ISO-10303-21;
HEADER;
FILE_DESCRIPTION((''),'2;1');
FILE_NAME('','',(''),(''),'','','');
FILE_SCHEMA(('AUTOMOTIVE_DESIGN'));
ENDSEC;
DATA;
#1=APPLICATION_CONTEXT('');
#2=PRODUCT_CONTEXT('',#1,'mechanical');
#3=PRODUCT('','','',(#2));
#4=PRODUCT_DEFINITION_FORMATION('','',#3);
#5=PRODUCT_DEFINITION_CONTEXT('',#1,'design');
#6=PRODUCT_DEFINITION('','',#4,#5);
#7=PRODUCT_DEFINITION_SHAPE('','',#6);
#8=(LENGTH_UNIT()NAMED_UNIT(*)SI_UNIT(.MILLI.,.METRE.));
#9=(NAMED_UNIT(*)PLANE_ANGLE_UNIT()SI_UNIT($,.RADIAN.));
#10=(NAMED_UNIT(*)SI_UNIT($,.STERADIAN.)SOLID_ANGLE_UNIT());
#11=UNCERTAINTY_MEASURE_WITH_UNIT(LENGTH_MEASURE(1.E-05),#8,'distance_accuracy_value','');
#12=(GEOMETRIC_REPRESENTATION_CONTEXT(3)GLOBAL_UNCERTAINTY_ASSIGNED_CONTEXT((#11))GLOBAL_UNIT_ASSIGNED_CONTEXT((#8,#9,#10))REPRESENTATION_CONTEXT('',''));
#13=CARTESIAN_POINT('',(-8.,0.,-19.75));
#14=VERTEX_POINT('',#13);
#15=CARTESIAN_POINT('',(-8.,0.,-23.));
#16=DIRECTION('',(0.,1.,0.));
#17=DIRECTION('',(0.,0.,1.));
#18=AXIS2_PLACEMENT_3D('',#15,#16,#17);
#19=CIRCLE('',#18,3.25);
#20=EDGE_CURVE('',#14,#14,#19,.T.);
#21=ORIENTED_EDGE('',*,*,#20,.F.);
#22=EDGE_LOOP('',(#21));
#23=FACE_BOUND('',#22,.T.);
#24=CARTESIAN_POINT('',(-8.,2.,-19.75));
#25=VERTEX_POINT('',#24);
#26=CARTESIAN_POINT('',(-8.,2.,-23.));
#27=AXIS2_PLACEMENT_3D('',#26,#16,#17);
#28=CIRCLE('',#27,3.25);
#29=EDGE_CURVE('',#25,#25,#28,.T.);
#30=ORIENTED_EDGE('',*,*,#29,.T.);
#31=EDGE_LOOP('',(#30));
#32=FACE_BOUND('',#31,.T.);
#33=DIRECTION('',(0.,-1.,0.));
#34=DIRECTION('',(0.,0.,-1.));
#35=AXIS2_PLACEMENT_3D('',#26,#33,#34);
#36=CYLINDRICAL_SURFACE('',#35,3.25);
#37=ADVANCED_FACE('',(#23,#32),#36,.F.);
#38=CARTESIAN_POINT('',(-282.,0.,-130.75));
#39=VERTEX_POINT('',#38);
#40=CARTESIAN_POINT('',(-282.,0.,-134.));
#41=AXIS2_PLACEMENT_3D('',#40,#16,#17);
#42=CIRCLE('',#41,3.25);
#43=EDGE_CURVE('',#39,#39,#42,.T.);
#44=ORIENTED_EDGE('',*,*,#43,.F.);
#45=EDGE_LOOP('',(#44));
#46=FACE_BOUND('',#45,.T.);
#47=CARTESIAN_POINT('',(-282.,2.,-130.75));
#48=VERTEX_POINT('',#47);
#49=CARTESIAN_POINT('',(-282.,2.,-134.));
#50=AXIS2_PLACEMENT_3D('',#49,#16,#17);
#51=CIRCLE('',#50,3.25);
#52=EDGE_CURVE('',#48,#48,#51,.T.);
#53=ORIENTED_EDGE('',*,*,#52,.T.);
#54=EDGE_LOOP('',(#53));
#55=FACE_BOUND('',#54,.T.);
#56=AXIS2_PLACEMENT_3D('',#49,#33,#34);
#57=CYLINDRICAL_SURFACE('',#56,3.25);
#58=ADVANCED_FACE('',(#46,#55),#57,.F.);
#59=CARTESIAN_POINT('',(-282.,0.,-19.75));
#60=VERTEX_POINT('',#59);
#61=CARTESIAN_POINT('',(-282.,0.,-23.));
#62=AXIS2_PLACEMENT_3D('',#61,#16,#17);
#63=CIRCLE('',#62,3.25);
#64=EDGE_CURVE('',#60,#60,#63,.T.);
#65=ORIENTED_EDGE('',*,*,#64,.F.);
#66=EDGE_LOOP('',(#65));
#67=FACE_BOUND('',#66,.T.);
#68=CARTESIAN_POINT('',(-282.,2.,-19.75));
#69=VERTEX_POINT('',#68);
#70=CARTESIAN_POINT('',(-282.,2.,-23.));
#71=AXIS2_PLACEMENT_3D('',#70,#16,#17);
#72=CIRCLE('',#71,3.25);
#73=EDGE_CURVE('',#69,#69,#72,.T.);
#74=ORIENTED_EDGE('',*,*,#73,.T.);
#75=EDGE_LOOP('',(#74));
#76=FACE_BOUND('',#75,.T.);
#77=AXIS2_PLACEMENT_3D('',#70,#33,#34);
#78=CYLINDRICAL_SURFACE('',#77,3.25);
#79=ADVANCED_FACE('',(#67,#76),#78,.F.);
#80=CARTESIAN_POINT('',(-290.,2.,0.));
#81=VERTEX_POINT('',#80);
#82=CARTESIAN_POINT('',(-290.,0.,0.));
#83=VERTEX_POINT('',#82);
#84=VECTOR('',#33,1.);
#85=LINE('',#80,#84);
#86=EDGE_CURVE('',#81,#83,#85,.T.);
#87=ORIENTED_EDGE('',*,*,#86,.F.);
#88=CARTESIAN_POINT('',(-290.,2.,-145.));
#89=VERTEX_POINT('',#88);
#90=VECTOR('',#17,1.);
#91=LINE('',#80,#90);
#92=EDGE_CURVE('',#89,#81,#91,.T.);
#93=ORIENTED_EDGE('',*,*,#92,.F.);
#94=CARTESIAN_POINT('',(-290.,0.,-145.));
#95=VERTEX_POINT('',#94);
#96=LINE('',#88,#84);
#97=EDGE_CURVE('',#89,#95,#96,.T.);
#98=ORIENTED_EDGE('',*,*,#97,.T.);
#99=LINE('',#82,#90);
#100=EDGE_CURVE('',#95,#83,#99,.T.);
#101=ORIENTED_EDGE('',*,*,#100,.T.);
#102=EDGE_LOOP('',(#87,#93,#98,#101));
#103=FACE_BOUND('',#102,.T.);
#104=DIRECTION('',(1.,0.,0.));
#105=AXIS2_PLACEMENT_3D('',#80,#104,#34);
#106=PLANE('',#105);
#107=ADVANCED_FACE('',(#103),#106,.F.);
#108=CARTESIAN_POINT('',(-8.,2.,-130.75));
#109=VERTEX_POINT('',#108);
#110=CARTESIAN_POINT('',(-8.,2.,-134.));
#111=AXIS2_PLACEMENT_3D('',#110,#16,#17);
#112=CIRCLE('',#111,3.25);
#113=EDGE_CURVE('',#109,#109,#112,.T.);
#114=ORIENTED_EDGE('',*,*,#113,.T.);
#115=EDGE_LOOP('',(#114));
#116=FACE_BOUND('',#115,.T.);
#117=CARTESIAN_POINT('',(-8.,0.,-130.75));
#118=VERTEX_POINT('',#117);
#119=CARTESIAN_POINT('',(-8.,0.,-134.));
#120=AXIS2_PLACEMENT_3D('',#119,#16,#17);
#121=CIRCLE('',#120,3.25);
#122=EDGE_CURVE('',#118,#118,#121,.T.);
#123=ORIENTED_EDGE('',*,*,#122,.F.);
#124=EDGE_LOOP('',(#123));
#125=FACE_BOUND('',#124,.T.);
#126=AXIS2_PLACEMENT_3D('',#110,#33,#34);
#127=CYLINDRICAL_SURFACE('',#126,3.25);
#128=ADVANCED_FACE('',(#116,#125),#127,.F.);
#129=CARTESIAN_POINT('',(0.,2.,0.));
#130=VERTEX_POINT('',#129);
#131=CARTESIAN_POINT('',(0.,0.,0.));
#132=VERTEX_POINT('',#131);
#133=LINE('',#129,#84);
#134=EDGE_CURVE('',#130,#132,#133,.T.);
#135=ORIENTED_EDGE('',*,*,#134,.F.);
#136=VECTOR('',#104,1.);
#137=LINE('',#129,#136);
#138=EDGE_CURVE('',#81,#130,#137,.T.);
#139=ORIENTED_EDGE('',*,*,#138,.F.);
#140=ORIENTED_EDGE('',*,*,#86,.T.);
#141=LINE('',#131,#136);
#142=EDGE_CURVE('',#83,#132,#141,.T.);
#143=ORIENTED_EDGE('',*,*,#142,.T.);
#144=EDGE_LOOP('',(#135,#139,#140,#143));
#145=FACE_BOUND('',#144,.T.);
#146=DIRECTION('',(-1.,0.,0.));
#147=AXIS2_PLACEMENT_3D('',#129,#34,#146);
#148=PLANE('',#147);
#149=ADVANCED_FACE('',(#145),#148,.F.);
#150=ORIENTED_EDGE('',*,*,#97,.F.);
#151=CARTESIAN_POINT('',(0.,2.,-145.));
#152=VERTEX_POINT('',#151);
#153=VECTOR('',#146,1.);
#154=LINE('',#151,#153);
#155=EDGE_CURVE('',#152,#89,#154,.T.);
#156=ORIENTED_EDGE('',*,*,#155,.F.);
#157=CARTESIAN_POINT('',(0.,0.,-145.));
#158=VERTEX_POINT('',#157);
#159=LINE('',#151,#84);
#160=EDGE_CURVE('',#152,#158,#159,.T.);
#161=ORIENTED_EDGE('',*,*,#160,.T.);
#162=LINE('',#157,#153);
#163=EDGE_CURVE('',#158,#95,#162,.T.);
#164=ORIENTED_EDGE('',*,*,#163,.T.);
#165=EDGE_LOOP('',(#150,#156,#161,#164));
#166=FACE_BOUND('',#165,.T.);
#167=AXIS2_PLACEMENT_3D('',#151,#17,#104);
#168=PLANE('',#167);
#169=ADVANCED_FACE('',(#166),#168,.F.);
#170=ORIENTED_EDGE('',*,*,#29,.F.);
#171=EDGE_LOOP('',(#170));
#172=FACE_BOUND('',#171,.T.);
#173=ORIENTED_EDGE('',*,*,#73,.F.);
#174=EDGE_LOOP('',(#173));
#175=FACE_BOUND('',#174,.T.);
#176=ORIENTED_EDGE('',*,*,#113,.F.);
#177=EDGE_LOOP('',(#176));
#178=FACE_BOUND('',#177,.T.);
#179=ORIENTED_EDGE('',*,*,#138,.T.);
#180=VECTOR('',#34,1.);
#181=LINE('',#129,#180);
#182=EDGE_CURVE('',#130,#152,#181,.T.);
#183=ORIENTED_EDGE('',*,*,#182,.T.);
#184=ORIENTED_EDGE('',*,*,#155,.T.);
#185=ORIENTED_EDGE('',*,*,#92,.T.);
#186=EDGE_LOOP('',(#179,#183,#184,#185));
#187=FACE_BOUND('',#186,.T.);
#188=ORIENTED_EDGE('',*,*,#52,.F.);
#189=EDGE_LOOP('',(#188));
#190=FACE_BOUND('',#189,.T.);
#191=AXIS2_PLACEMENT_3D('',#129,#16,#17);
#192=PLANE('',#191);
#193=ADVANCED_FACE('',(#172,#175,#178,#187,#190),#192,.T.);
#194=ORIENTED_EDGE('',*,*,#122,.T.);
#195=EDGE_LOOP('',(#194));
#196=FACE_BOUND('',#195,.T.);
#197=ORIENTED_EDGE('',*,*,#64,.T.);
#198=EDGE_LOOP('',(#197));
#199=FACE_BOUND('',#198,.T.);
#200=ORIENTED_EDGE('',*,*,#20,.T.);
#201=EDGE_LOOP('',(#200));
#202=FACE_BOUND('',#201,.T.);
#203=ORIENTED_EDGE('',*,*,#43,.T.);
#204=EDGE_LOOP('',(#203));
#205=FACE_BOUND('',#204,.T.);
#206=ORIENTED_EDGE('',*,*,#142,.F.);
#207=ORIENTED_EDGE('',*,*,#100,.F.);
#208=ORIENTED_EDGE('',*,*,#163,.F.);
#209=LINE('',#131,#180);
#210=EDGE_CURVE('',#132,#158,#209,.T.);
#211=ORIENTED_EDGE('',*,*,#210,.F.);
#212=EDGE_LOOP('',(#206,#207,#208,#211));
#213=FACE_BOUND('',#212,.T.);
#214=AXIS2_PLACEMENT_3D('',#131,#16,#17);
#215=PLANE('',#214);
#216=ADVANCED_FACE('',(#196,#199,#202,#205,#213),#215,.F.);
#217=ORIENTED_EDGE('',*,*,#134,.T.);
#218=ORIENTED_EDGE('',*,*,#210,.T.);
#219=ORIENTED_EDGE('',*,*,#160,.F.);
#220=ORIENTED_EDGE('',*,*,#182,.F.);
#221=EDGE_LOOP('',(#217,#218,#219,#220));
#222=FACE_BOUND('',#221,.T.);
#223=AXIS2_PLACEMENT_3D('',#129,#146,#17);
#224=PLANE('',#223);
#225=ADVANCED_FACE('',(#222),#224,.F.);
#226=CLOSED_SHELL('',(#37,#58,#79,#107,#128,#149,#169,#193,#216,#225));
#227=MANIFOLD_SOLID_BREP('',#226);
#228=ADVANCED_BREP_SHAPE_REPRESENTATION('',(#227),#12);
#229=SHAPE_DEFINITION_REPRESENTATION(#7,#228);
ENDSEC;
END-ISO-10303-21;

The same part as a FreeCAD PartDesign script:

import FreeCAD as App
import Part
import Sketcher

V = App.Vector
Q = App.Units.Quantity


def add_polygon(sketch, points):
    """Adds a closed chain of lines whose ends are joined by coincident constraints."""
    first, n = sketch.GeometryCount, len(points)
    for a, b in zip(points, points[1:] + points[:1]):
        sketch.addGeometry(Part.LineSegment(App.Vector(*a, 0), App.Vector(*b, 0)), False)
    for i in range(n):
        sketch.addConstraint(Sketcher.Constraint("Coincident", first + i, 2, first + (i + 1) % n, 1))

doc = App.newDocument("Part")
body = doc.addObject("PartDesign::Body", "Body")

# Sketch on XZ plane
sketch1 = body.newObject("Sketcher::SketchObject", "Sketch")
sketch1.AttachmentSupport = (doc.getObject("XZ_Plane"), [""])
sketch1.MapMode = "FlatFace"
add_polygon(sketch1, [(-290, -145), (-290, 0), (0, 0), (0, -145)])  # lines 0-3
sketch1.addGeometry(Part.Circle(V(-282, -23, 0), V(0, 0, 1), 3.2), False)  # 4
sketch1.addGeometry(Part.Circle(V(-8, -23, 0), V(0, 0, 1), 3.2), False)  # 5
sketch1.addGeometry(Part.Circle(V(-282, -134, 0), V(0, 0, 1), 3.2), False)  # 6
sketch1.addGeometry(Part.Circle(V(-8, -134, 0), V(0, 0, 1), 3.2), False)  # 7
sketch1.addConstraint(Sketcher.Constraint("Vertical", 0))
sketch1.addConstraint(Sketcher.Constraint("Horizontal", 1))
sketch1.addConstraint(Sketcher.Constraint("Vertical", 2))
sketch1.addConstraint(Sketcher.Constraint("Horizontal", 3))
sketch1.addConstraint(Sketcher.Constraint("Coincident", 1, 2, -1, 1))
sketch1.addConstraint(Sketcher.Constraint("Equal", 4, 5))
sketch1.addConstraint(Sketcher.Constraint("Equal", 5, 6))
sketch1.addConstraint(Sketcher.Constraint("Equal", 6, 7))
sketch1.addConstraint(Sketcher.Constraint("Horizontal", 4, 3, 5, 3))
sketch1.addConstraint(Sketcher.Constraint("Horizontal", 6, 3, 7, 3))
sketch1.addConstraint(Sketcher.Constraint("Vertical", 4, 3, 6, 3))
sketch1.addConstraint(Sketcher.Constraint("Vertical", 5, 3, 7, 3))
sketch1.addConstraint(Sketcher.Constraint("Diameter", 4, Q("6.5 mm")))
sketch1.addConstraint(Sketcher.Constraint("DistanceX", 1, 1, 1, 2, Q("290 mm")))
sketch1.addConstraint(Sketcher.Constraint("DistanceY", 0, 1, 0, 2, Q("145 mm")))
sketch1.addConstraint(Sketcher.Constraint("DistanceX", 4, 3, -1, 1, Q("282 mm")))
sketch1.addConstraint(Sketcher.Constraint("DistanceY", 4, 3, -1, 1, Q("23 mm")))
sketch1.addConstraint(Sketcher.Constraint("DistanceX", 5, 3, -1, 1, Q("8 mm")))
sketch1.addConstraint(Sketcher.Constraint("DistanceY", 6, 3, -1, 1, Q("134 mm")))
pad1 = body.newObject("PartDesign::Pad", "Pad")
pad1.Profile = sketch1
pad1.Length = 2
pad1.Reversed = True

doc.recompute()
